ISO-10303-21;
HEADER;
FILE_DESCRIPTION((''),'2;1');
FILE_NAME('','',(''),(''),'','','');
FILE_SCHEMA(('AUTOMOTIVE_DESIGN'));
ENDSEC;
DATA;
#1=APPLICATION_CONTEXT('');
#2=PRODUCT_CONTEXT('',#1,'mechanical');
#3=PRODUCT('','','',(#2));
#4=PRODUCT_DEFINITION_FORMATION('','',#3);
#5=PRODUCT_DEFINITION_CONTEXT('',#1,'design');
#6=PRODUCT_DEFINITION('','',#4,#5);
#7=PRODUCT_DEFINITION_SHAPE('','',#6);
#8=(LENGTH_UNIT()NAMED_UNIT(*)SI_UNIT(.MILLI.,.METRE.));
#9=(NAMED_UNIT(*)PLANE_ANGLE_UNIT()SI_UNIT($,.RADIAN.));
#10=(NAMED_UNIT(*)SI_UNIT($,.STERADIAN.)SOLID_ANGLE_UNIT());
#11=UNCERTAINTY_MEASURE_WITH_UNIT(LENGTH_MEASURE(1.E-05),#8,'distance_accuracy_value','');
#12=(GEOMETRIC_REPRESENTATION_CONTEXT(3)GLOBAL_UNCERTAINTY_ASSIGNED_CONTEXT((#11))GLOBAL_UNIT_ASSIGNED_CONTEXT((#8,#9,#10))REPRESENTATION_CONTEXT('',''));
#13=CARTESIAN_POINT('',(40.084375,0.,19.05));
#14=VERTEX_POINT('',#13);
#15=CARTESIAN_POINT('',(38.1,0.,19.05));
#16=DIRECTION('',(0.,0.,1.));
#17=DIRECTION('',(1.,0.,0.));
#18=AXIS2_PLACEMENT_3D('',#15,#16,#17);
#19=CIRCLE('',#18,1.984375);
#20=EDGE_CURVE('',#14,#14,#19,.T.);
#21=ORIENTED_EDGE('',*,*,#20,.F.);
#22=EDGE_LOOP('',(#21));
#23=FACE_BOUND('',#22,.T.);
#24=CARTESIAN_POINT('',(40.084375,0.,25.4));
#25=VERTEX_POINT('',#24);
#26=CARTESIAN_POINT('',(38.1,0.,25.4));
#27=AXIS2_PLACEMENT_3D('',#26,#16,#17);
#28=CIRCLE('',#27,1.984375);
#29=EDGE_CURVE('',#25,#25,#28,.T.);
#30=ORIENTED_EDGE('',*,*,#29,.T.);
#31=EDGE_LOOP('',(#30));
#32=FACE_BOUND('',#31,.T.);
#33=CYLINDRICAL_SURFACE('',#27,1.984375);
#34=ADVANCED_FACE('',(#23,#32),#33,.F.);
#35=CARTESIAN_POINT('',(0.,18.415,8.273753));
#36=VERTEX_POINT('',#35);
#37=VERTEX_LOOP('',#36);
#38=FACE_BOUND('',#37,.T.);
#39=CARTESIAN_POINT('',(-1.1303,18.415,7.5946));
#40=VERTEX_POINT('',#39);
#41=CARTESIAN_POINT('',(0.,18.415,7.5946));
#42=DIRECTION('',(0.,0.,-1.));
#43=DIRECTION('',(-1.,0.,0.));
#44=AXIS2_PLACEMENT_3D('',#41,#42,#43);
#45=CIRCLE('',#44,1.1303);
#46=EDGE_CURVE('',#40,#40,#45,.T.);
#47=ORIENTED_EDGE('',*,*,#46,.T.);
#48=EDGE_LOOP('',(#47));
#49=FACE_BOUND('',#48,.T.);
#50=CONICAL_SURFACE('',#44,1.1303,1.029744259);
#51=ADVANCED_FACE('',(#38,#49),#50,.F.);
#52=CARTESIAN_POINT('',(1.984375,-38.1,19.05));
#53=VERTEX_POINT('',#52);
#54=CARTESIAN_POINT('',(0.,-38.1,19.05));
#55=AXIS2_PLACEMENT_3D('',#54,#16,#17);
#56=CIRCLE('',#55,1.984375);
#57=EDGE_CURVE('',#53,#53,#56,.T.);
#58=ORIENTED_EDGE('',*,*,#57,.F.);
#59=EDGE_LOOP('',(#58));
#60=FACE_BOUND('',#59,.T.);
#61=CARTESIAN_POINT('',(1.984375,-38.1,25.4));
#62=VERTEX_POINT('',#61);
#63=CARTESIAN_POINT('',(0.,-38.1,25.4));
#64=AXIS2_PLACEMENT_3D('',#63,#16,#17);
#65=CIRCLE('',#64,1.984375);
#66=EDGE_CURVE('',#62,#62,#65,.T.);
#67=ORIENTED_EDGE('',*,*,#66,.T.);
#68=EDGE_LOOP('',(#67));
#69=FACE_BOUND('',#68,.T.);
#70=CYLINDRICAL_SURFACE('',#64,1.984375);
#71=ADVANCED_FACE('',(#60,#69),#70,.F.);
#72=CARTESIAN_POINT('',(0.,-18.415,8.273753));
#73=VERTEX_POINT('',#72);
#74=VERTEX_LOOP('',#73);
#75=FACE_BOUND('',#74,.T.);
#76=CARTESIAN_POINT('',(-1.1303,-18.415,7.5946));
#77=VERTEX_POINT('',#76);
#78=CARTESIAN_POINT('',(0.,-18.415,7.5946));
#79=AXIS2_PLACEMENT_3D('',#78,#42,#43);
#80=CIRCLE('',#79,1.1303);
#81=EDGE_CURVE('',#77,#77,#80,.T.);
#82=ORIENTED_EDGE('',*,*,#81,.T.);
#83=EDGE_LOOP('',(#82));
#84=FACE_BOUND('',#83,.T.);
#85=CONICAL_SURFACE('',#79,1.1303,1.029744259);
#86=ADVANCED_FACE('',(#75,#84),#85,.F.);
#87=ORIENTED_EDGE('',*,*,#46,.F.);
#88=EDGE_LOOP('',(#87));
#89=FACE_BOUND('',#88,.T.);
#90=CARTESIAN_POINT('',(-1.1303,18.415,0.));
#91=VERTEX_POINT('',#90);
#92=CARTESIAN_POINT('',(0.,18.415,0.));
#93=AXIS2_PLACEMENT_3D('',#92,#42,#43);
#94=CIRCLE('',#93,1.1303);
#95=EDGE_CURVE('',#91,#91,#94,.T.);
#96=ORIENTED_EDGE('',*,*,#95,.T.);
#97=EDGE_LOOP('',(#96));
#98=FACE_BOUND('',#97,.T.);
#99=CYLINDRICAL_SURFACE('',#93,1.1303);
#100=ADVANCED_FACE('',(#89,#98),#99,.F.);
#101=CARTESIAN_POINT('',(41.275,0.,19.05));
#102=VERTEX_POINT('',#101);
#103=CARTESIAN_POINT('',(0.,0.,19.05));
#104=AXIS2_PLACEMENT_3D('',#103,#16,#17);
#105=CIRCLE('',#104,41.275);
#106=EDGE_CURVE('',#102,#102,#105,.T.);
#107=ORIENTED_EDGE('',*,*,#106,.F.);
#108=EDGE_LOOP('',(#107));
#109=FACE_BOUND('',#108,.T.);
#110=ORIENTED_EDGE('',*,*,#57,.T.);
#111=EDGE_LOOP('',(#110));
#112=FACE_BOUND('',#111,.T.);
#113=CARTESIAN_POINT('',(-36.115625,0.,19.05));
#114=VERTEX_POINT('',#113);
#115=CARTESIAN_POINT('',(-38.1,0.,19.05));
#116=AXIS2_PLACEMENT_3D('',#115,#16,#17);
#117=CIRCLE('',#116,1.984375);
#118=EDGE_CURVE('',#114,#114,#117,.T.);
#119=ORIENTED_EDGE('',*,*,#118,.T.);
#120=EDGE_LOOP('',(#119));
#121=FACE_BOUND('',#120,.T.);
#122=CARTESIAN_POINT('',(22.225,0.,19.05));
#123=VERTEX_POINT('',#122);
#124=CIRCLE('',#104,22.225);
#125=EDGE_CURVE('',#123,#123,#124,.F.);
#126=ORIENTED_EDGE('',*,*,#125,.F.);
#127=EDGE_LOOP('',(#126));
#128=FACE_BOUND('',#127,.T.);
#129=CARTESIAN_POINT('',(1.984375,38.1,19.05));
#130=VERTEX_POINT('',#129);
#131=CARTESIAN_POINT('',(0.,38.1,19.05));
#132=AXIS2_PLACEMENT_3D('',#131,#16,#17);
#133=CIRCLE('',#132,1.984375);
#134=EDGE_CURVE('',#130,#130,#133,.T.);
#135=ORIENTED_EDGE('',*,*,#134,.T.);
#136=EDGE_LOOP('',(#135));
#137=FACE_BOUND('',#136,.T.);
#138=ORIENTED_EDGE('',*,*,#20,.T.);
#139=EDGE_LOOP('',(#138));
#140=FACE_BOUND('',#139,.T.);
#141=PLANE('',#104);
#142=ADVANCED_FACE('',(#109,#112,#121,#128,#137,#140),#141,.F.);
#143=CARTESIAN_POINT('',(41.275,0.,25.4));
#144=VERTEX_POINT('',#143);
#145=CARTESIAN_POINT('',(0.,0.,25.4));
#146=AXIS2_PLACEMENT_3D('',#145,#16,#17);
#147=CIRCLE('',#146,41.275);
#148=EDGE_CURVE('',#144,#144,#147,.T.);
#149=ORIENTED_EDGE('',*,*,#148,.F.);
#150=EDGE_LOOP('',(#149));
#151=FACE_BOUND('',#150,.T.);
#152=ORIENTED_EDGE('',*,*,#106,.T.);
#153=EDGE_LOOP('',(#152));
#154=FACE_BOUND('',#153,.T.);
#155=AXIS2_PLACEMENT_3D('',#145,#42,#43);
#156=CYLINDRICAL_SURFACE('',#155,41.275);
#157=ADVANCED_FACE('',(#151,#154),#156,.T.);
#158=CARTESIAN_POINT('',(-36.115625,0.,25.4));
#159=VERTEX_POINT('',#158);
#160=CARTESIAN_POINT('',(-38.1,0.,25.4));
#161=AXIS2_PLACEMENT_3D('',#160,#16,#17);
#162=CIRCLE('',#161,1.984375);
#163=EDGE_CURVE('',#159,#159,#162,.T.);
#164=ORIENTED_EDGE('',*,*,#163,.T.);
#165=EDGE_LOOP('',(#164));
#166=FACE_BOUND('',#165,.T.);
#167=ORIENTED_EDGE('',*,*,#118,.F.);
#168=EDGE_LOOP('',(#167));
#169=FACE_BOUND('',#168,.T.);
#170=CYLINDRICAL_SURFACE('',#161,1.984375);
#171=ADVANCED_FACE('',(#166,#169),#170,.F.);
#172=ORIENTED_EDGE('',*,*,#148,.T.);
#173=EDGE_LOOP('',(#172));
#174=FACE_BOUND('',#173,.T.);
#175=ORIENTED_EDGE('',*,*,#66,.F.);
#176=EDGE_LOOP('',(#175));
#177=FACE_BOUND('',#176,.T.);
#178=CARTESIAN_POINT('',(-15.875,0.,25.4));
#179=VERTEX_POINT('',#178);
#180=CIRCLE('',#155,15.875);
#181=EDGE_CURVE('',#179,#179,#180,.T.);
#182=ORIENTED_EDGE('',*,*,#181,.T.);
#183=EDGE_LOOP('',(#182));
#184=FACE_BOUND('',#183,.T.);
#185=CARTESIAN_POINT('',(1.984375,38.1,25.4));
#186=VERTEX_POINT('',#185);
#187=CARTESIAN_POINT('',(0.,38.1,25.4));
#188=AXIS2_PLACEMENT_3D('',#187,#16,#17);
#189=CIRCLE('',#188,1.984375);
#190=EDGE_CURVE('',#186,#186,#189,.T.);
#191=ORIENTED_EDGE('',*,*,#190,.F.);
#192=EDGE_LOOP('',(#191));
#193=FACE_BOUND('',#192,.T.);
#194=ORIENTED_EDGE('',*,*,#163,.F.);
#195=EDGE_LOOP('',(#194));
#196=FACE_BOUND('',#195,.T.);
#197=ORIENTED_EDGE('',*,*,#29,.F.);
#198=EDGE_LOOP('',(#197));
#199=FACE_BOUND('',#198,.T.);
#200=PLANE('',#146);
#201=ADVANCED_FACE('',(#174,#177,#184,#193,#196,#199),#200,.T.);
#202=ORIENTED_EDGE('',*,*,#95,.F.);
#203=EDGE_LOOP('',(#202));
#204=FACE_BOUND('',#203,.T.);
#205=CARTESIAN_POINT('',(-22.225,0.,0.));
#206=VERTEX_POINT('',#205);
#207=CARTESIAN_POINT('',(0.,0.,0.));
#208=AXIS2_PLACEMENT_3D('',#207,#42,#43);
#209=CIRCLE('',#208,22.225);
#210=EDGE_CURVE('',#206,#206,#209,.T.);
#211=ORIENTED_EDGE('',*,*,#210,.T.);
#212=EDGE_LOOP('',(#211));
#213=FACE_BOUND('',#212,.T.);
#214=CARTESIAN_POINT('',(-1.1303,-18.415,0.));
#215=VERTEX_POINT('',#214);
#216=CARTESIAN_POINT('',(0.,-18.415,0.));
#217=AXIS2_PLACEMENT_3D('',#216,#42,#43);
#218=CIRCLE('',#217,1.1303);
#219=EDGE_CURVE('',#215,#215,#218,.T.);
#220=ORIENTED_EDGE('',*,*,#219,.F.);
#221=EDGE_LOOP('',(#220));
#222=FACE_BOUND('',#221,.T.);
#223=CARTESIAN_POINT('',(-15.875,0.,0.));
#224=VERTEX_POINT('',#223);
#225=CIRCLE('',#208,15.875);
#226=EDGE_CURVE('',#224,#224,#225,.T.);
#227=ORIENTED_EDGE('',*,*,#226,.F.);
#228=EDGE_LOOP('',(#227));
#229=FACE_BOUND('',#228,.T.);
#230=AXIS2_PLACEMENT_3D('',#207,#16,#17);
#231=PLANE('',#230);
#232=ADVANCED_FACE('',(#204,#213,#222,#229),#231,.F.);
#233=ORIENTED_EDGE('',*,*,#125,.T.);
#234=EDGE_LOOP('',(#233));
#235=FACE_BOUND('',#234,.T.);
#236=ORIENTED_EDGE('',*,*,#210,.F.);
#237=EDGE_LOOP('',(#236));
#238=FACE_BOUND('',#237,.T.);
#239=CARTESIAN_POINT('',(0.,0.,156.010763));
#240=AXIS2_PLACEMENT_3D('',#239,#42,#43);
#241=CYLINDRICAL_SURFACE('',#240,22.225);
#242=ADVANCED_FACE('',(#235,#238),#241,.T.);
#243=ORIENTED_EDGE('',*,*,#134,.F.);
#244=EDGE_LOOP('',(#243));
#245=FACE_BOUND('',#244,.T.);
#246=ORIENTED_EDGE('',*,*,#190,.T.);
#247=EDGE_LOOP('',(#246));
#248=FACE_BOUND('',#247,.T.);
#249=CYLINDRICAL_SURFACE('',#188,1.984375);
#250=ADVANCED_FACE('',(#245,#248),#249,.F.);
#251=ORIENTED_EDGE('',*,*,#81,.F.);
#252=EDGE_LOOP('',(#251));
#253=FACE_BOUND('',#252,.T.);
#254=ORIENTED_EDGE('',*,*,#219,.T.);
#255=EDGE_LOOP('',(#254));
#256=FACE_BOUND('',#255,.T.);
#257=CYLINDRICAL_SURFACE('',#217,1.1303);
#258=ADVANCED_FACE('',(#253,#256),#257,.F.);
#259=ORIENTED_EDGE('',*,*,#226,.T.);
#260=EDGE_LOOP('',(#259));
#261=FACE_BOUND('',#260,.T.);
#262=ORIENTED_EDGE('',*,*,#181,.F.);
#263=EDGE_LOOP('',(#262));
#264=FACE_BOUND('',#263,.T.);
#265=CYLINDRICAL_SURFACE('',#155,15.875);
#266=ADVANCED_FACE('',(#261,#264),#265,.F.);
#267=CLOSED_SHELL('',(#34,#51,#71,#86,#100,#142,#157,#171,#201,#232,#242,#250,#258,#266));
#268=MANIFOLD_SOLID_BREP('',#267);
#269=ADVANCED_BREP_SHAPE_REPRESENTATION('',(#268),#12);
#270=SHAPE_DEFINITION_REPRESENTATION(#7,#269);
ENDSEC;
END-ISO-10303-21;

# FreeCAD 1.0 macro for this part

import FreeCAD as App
import Part
import Sketcher
from FreeCAD import Vector
Q = App.Units.Quantity


def add_polygon(sketch, points):
    """Adds a closed chain of lines whose ends are joined by coincident constraints."""
    first, n = sketch.GeometryCount, len(points)
    for a, b in zip(points, points[1:] + points[:1]):
        sketch.addGeometry(Part.LineSegment(App.Vector(*a, 0), App.Vector(*b, 0)), False)
    for i in range(n):
        sketch.addConstraint(Sketcher.Constraint("Coincident", first + i, 2, first + (i + 1) % n, 1))

doc = App.newDocument("Part")
params = doc.addObject("Spreadsheet::Sheet", "Params")
for row, (alias, value) in enumerate([
    ("sketch1_diameter", "3.25 in"),
    ("pad1_length", "1 in"),
    ("sketch2_diameter", "1.75 in"),
    ("pocket1_length", "0.75 in"),
    ("sketch3_diameter", "1.25 in"),
    ("sketch4_diameter", "0.089 in"),
    ("hole_diameter", "0.089 in"),
    ("hole_depth", "0.299 in"),
    ("sketch5_diameter", "0.15625 in"),
    ("hole2_diameter", "0.15625 in"),
    ("sketch6_diameter", "0.15625 in"),
    ("hole3_diameter", "0.15625 in"),
    ("sketch7_diameter", "0.15625 in"),
    ("hole4_diameter", "0.15625 in"),
], start=1):
    params.set(f"A{row}", alias)
    params.set(f"B{row}", "=" + value)
    params.setAlias(f"B{row}", alias)

body = doc.addObject("PartDesign::Body", "Body")

# Sketch on XY plane
sketch1 = body.newObject("Sketcher::SketchObject", "Sketch")
sketch1.AttachmentSupport = (doc.getObject("XY_Plane"), [""])
sketch1.MapMode = "FlatFace"
sketch1.addGeometry(Part.Circle(Vector(0, 0, 0), Vector(0, 0, 1), 41), False)
sketch1.addConstraint(Sketcher.Constraint("Coincident", 0, 3, -1, 1))
sketch1.addConstraint(Sketcher.Constraint("Diameter", 0, Q("3.25 in")))
sketch1.setExpression("Constraints[1]", "Params.sketch1_diameter")
pad1 = body.newObject("PartDesign::Pad", "Pad")
pad1.Profile = sketch1
pad1.setExpression("Length", "Params.pad1_length")

# Sketch on XY plane
sketch2 = body.newObject("Sketcher::SketchObject", "Sketch001")
sketch2.AttachmentSupport = (doc.getObject("XY_Plane"), [""])
sketch2.MapMode = "FlatFace"
add_polygon(sketch2, [(54, 54), (54, -54), (-54, -54), (-54, 54)])  # lines 0-3
sketch2.addGeometry(Part.Circle(Vector(0, 0, 0), Vector(0, 0, 1), 22), False)  # 4
sketch2.addConstraint(Sketcher.Constraint("Vertical", 0))
sketch2.addConstraint(Sketcher.Constraint("Horizontal", 1))
sketch2.addConstraint(Sketcher.Constraint("Vertical", 2))
sketch2.addConstraint(Sketcher.Constraint("Horizontal", 3))
sketch2.addConstraint(Sketcher.Constraint("Coincident", 4, 3, -1, 1))
sketch2.addConstraint(Sketcher.Constraint("Symmetric", 0, 2, 2, 2, -1, 1))
sketch2.addConstraint(Sketcher.Constraint("Equal", 3, 0))
sketch2.addConstraint(Sketcher.Constraint("Diameter", 4, Q("1.75 in")))
sketch2.addConstraint(Sketcher.Constraint("DistanceX", 1, 2, 1, 1, Q("108.444 mm")))
sketch2.setExpression("Constraints[11]", "Params.sketch2_diameter")
pocket1 = body.newObject("PartDesign::Pocket", "Pocket")
pocket1.Profile = sketch2
pocket1.setExpression("Length", "Params.pocket1_length")
pocket1.Reversed = True

# Sketch on XY plane
sketch3 = body.newObject("Sketcher::SketchObject", "Sketch002")
sketch3.AttachmentSupport = (doc.getObject("XY_Plane"), [""])
sketch3.MapMode = "FlatFace"
sketch3.addGeometry(Part.Circle(Vector(0, 0, 0), Vector(0, 0, 1), 16), False)
sketch3.addConstraint(Sketcher.Constraint("Coincident", 0, 3, -1, 1))
sketch3.addConstraint(Sketcher.Constraint("Diameter", 0, Q("1.25 in")))
sketch3.setExpression("Constraints[1]", "Params.sketch3_diameter")
pocket2 = body.newObject("PartDesign::Pocket", "Pocket001")
pocket2.Profile = sketch3
pocket2.Type = "ThroughAll"
pocket2.Reversed = True

# Sketch on XY plane
sketch4 = body.newObject("Sketcher::SketchObject", "Sketch003")
sketch4.AttachmentSupport = (doc.getObject("XY_Plane"), [""])
sketch4.MapMode = "FlatFace"
sketch4.addGeometry(Part.Circle(Vector(0, 18.4, 0), Vector(0, 0, 1), 1.1), False)
sketch4.addGeometry(Part.Circle(Vector(0, -18.4, 0), Vector(0, 0, 1), 1.1), False)
sketch4.addConstraint(Sketcher.Constraint("Equal", 0, 1))
sketch4.addConstraint(Sketcher.Constraint("Symmetric", 0, 3, 1, 3, -1, 1))
sketch4.addConstraint(Sketcher.Constraint("PointOnObject", 0, 3, -2))
sketch4.addConstraint(Sketcher.Constraint("Diameter", 0, Q("0.089 in")))
sketch4.addConstraint(Sketcher.Constraint("DistanceY", 1, 3, 0, 3, Q("1.45 in")))
sketch4.setExpression("Constraints[3]", "Params.sketch4_diameter")
doc.recompute()
hole = body.newObject("PartDesign::Hole", "Hole")
hole.Profile = sketch4
hole.ThreadType = "None"
hole.setExpression("Diameter", "Params.hole_diameter")
hole.DepthType = "Dimension"
hole.setExpression("Depth", "Params.hole_depth")
hole.DrillPoint = "Angled"
hole.DrillPointAngle = 118
hole.Reversed = True

# Sketch on XY plane
sketch5 = body.newObject("Sketcher::SketchObject", "Sketch004")
sketch5.AttachmentSupport = (doc.getObject("XY_Plane"), [""])
sketch5.MapMode = "FlatFace"
sketch5.AttachmentOffset = App.Placement(Vector(0, 0, 1 * 25.4), App.Rotation())
sketch5.addGeometry(Part.Circle(Vector(0, 38.1, 0), Vector(0, 0, 1), 2), False)
sketch5.addGeometry(Part.Circle(Vector(38.1, 0, 0), Vector(0, 0, 1), 2), False)
sketch5.addConstraint(Sketcher.Constraint("Equal", 0, 1))
sketch5.addConstraint(Sketcher.Constraint("PointOnObject", 0, 3, -2))
sketch5.addConstraint(Sketcher.Constraint("PointOnObject", 1, 3, -1))
sketch5.addConstraint(Sketcher.Constraint("Diameter", 0, Q("0.15625 in")))
sketch5.addConstraint(Sketcher.Constraint("DistanceY", -1, 1, 0, 3, Q("1.5 in")))
sketch5.addConstraint(Sketcher.Constraint("DistanceX", -1, 1, 1, 3, Q("1.5 in")))
sketch5.setExpression("Constraints[3]", "Params.sketch5_diameter")
doc.recompute()
hole2 = body.newObject("PartDesign::Hole", "Hole001")
hole2.Profile = sketch5
hole2.ThreadType = "None"
hole2.setExpression("Diameter", "Params.hole2_diameter")
hole2.DepthType = "ThroughAll"
doc.recompute()

mirrored = body.newObject("PartDesign::Mirrored", "Mirrored")
mirrored.Originals = [hole2]
mirrored.MirrorPlane = (doc.getObject("XZ_Plane"), [""])
body.Tip = mirrored

# Sketch on XY plane
sketch6 = body.newObject("Sketcher::SketchObject", "Sketch005")
sketch6.AttachmentSupport = (doc.getObject("XY_Plane"), [""])
sketch6.MapMode = "FlatFace"
sketch6.AttachmentOffset = App.Placement(Vector(0, 0, 1 * 25.4), App.Rotation())
sketch6.addGeometry(Part.Circle(Vector(0, -38.1, 0), Vector(0, 0, 1), 2), False)
sketch6.addGeometry(Part.Circle(Vector(-38.1, 0, 0), Vector(0, 0, 1), 2), False)
sketch6.addConstraint(Sketcher.Constraint("Equal", 0, 1))
sketch6.addConstraint(Sketcher.Constraint("PointOnObject", 0, 3, -2))
sketch6.addConstraint(Sketcher.Constraint("PointOnObject", 1, 3, -1))
sketch6.addConstraint(Sketcher.Constraint("Diameter", 0, Q("0.15625 in")))
sketch6.addConstraint(Sketcher.Constraint("DistanceY", 0, 3, -1, 1, Q("1.5 in")))
sketch6.addConstraint(Sketcher.Constraint("DistanceX", 1, 3, -1, 1, Q("1.5 in")))
sketch6.setExpression("Constraints[3]", "Params.sketch6_diameter")
doc.recompute()
hole3 = body.newObject("PartDesign::Hole", "Hole002")
hole3.Profile = sketch6
hole3.ThreadType = "None"
hole3.setExpression("Diameter", "Params.hole3_diameter")
hole3.DepthType = "ThroughAll"

# Sketch on XY plane
sketch7 = body.newObject("Sketcher::SketchObject", "Sketch006")
sketch7.AttachmentSupport = (doc.getObject("XY_Plane"), [""])
sketch7.MapMode = "FlatFace"
sketch7.AttachmentOffset = App.Placement(Vector(0, 0, 1 * 25.4), App.Rotation())
sketch7.addGeometry(Part.Circle(Vector(0, 38.1, 0), Vector(0, 0, 1), 2), False)
sketch7.addGeometry(Part.Circle(Vector(-38.1, 0, 0), Vector(0, 0, 1), 2), False)
sketch7.addConstraint(Sketcher.Constraint("Equal", 0, 1))
sketch7.addConstraint(Sketcher.Constraint("PointOnObject", 0, 3, -2))
sketch7.addConstraint(Sketcher.Constraint("PointOnObject", 1, 3, -1))
sketch7.addConstraint(Sketcher.Constraint("Diameter", 0, Q("0.15625 in")))
sketch7.addConstraint(Sketcher.Constraint("DistanceY", -1, 1, 0, 3, Q("1.5 in")))
sketch7.addConstraint(Sketcher.Constraint("DistanceX", 1, 3, -1, 1, Q("1.5 in")))
sketch7.setExpression("Constraints[3]", "Params.sketch7_diameter")
doc.recompute()
hole4 = body.newObject("PartDesign::Hole", "Hole003")
hole4.Profile = sketch7
hole4.ThreadType = "None"
hole4.setExpression("Diameter", "Params.hole4_diameter")
hole4.DepthType = "ThroughAll"

doc.recompute()
